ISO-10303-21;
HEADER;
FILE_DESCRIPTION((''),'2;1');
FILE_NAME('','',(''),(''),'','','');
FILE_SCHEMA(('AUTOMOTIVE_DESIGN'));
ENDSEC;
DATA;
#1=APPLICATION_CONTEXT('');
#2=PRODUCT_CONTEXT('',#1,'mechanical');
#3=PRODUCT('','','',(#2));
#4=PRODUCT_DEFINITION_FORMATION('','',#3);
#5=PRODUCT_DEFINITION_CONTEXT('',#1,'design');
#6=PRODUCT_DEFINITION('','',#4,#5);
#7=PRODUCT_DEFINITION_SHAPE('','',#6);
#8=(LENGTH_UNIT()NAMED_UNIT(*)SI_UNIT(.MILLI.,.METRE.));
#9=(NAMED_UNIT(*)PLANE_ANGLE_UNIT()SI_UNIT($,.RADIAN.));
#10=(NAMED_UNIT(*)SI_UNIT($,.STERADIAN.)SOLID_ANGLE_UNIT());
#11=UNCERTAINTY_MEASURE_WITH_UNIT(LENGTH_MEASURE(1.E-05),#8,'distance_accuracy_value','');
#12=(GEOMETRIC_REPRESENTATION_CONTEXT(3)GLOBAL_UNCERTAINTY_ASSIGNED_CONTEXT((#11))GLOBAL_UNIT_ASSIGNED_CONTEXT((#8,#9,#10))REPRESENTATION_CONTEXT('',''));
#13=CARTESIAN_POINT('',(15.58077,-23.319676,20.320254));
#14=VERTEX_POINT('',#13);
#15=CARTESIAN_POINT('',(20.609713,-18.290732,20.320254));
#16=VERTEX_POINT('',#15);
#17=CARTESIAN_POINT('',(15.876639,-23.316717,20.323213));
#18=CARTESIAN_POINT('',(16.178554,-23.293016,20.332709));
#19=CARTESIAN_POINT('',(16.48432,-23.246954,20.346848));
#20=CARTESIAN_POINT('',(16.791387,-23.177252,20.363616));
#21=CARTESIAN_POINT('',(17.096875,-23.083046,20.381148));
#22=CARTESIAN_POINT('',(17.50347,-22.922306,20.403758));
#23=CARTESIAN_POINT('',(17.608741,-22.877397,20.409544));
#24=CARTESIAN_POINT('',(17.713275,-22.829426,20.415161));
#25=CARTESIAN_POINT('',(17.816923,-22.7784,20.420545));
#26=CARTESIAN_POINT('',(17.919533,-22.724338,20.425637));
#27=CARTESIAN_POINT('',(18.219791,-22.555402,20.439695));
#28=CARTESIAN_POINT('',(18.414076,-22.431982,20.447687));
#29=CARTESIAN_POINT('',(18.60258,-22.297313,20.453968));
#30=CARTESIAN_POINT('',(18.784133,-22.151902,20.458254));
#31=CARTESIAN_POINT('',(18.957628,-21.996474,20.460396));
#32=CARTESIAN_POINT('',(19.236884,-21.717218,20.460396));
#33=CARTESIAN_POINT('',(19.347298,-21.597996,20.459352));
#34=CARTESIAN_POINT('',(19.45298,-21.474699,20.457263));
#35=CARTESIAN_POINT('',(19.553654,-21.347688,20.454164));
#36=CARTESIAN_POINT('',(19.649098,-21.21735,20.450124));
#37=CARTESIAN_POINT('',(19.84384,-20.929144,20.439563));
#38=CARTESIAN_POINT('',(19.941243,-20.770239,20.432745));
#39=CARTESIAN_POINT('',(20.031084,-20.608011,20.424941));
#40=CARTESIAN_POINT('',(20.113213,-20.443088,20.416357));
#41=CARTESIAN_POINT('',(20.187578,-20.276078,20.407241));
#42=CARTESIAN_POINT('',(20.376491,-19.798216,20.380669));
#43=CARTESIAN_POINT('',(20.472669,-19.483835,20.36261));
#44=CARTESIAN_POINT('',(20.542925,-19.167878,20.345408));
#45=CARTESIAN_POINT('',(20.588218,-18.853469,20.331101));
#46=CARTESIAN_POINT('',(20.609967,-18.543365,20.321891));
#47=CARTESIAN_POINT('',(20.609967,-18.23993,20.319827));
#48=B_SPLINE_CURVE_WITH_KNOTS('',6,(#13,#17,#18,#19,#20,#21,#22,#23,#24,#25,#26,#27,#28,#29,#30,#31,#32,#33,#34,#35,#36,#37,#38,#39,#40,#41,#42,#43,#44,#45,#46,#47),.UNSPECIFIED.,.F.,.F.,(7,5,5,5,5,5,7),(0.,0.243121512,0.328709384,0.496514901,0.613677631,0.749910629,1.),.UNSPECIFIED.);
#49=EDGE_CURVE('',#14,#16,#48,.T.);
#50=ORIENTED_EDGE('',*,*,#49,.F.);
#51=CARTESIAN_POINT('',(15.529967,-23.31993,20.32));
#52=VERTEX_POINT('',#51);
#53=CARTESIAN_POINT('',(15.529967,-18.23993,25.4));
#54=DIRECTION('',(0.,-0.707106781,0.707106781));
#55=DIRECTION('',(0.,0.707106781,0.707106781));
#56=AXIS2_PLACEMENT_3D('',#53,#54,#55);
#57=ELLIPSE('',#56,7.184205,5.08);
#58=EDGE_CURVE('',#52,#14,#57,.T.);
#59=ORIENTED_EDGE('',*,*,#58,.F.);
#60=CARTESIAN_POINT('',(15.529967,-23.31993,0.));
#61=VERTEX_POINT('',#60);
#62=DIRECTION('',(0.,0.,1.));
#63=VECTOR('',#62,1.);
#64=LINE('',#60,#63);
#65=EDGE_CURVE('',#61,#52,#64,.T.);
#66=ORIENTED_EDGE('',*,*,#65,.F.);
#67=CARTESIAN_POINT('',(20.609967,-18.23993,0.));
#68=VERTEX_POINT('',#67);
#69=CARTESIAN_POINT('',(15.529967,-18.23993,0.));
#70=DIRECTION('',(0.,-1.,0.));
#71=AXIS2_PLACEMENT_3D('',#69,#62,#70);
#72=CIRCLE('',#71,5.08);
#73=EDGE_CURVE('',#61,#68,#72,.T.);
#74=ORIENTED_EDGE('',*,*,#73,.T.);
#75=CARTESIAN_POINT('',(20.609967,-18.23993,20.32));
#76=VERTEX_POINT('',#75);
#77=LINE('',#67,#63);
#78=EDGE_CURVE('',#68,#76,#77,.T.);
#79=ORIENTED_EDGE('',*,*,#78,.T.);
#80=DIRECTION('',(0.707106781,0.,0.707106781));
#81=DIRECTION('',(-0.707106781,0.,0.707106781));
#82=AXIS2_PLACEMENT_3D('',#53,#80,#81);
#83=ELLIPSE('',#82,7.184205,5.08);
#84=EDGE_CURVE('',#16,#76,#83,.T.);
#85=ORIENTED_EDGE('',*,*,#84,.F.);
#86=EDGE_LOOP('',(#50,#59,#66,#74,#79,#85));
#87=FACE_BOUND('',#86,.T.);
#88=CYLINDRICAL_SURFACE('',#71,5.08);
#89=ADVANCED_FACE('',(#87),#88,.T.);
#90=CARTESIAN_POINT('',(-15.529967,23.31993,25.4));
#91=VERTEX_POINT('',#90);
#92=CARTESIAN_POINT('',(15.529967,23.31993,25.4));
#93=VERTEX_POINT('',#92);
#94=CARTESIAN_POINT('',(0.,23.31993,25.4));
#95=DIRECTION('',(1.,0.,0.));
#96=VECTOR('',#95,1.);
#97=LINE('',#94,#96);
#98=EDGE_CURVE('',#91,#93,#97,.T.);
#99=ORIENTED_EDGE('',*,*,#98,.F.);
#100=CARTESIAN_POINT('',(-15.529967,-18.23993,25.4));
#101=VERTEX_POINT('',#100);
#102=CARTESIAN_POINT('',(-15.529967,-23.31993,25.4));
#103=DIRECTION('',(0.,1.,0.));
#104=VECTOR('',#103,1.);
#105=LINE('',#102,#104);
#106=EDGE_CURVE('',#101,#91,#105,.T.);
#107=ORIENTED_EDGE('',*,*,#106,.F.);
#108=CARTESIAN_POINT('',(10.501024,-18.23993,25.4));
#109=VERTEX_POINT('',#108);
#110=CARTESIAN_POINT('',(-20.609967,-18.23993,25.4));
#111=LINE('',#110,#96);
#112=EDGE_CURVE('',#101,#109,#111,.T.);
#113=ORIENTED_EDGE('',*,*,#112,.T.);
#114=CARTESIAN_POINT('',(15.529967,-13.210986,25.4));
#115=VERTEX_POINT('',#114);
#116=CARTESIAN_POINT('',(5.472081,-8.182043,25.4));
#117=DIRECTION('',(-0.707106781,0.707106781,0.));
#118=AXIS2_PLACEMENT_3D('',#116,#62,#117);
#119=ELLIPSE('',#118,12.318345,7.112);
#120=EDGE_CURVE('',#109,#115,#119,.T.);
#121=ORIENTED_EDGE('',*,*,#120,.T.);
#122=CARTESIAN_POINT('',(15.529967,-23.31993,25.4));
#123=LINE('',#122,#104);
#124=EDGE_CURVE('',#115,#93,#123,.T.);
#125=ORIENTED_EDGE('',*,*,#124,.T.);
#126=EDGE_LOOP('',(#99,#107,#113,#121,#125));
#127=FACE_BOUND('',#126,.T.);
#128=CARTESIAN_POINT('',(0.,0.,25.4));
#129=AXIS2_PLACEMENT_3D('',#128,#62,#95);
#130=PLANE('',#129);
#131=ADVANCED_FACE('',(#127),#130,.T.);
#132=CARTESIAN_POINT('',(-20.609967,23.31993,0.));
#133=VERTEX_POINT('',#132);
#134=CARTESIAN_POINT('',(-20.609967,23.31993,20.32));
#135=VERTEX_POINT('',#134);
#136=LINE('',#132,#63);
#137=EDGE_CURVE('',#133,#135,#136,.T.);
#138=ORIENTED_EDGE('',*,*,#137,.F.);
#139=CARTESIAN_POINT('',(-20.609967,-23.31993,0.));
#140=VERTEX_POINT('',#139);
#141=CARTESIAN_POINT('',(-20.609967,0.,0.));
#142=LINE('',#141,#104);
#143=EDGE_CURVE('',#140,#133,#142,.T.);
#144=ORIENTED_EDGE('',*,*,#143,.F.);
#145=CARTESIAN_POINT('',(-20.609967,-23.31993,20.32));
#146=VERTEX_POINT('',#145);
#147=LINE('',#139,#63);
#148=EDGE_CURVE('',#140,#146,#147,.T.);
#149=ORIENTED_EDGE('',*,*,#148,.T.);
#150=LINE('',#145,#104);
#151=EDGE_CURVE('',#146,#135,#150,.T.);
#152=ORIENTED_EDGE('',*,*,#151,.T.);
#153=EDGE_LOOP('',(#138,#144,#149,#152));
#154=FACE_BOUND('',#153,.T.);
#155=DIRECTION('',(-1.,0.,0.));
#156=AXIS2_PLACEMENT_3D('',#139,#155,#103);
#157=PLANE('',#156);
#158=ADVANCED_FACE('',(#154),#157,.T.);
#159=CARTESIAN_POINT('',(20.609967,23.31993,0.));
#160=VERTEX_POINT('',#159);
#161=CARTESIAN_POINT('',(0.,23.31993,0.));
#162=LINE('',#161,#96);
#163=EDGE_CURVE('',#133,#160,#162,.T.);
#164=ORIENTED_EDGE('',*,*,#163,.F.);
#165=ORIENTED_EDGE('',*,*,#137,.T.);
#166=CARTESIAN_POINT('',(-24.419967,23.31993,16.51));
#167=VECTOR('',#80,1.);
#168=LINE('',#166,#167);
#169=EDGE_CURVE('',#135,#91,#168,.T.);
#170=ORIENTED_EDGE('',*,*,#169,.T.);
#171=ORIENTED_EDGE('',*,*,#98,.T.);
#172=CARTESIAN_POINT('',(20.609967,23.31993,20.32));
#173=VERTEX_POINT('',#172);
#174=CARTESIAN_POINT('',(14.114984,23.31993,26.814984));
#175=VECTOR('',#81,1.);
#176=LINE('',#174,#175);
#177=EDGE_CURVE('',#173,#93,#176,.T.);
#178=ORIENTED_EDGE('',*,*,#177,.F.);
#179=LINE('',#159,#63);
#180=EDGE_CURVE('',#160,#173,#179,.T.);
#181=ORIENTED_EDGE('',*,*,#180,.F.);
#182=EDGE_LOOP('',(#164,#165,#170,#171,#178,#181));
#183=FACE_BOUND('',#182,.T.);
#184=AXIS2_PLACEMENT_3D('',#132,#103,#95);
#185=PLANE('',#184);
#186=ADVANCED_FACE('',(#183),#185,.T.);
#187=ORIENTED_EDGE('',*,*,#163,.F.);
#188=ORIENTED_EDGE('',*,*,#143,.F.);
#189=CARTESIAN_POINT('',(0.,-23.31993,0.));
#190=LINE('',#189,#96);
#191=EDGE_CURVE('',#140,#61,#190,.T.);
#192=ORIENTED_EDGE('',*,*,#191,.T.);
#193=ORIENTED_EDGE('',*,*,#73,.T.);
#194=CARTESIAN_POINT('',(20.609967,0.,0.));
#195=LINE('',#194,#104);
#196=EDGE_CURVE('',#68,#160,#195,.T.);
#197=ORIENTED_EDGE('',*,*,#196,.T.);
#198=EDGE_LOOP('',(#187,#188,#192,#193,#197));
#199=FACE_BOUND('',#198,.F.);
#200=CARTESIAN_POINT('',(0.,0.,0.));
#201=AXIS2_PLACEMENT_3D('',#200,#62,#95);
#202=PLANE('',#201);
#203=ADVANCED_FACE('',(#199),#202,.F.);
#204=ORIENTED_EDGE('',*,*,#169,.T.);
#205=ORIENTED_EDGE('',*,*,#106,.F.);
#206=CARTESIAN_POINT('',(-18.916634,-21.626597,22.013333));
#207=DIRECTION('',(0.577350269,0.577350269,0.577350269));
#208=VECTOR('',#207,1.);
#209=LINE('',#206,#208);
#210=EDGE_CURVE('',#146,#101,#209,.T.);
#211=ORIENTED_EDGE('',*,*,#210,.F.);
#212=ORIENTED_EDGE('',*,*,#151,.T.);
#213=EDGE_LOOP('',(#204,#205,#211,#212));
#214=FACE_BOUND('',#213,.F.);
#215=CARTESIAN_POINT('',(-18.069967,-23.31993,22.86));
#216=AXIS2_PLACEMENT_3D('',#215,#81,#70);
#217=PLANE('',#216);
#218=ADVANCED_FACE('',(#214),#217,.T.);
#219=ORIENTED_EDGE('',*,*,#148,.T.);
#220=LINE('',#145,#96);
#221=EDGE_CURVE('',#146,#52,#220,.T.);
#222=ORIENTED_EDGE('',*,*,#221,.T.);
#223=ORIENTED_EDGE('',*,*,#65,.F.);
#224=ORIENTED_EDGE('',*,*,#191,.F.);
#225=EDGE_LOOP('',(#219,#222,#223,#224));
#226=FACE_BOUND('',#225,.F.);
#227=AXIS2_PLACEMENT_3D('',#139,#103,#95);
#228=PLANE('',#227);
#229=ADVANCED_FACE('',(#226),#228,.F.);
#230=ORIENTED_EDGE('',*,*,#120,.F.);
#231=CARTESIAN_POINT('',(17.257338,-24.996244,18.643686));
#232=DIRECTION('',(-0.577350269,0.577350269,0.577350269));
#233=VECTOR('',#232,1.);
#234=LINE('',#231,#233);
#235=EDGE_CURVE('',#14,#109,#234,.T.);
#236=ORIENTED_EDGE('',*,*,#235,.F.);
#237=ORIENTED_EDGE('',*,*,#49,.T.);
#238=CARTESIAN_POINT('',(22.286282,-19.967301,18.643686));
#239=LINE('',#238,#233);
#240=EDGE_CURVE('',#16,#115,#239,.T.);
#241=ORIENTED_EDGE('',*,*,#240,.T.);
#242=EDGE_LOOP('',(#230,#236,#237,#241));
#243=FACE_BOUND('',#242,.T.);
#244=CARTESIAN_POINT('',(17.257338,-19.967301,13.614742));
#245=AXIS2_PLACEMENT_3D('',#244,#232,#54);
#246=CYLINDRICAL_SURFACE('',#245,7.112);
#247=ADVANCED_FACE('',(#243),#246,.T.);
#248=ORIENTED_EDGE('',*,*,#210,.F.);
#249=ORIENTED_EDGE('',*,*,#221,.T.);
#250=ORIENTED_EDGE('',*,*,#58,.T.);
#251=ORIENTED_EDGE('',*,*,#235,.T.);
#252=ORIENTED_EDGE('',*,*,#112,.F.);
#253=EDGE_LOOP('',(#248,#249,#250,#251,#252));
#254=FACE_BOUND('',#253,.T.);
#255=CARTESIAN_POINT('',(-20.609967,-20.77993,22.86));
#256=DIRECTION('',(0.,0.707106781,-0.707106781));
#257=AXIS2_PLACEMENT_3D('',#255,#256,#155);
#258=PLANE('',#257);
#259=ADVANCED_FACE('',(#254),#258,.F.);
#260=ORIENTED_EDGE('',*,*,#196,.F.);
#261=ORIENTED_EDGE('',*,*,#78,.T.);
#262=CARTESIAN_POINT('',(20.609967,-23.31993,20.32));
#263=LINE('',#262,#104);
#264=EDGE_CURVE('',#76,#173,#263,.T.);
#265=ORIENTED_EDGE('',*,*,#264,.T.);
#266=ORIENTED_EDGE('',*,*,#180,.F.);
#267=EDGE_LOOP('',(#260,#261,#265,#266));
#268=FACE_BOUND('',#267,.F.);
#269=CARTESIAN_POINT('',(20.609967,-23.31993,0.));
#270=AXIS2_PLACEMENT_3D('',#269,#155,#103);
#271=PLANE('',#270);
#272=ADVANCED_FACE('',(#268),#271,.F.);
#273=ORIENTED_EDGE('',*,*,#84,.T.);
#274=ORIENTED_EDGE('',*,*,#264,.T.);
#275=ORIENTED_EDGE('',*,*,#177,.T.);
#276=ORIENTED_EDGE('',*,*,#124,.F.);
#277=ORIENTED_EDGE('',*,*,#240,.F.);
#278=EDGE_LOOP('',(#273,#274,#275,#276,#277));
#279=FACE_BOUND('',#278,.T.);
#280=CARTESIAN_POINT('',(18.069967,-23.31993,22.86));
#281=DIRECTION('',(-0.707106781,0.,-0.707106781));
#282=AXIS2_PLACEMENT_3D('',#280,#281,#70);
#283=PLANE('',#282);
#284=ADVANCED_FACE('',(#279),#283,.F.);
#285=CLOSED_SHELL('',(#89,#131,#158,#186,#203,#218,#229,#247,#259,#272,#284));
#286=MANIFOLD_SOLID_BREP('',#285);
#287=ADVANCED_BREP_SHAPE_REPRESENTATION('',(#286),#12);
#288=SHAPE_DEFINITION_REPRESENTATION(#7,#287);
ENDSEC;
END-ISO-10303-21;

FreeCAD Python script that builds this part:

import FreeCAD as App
import Part
import Sketcher

V = App.Vector
Q = App.Units.Quantity


def edges_at(feature, points):
    """Names of the edges that pass closest to the given points."""
    edges = feature.Shape.Edges
    near = lambda p: min(range(len(edges)), key=lambda i: edges[i].distToShape(Part.Vertex(*p))[0])
    return sorted({f"Edge{near(p) + 1}" for p in points})


def add_polygon(sketch, points):
    """Adds a closed chain of lines whose ends are joined by coincident constraints."""
    first, n = sketch.GeometryCount, len(points)
    for a, b in zip(points, points[1:] + points[:1]):
        sketch.addGeometry(Part.LineSegment(App.Vector(*a, 0), App.Vector(*b, 0)), False)
    for i in range(n):
        sketch.addConstraint(Sketcher.Constraint("Coincident", first + i, 2, first + (i + 1) % n, 1))

doc = App.newDocument("Part")
body = doc.addObject("PartDesign::Body", "Body")

sketch1 = body.newObject("Sketcher::SketchObject", "Sketch")
sketch1.AttachmentSupport = (doc.getObject("XY_Plane"), [""])
sketch1.MapMode = "FlatFace"
add_polygon(sketch1, [(-20.609967, 23.31993), (-20.609967, -23.31993), (20.609967, -23.31993), (20.609967, 23.31993)])
sketch1.addConstraint(Sketcher.Constraint("Vertical", 0))
sketch1.addConstraint(Sketcher.Constraint("Horizontal", 1))
sketch1.addConstraint(Sketcher.Constraint("Vertical", 2))
sketch1.addConstraint(Sketcher.Constraint("Horizontal", 3))
sketch1.addConstraint(Sketcher.Constraint("Symmetric", 0, 2, 2, 2, -1, 1))
sketch1.addConstraint(Sketcher.Constraint("DistanceY", 0, 2, 0, 1, Q("46.63986 mm")))
sketch1.addConstraint(Sketcher.Constraint("DistanceX", 1, 1, 1, 2, Q("41.219935 mm")))
pad1 = body.newObject("PartDesign::Pad", "Pad")
pad1.Profile = sketch1
pad1.Length = Q("1 in")
doc.recompute()

chamfer = body.newObject("PartDesign::Chamfer", "Chamfer")
chamfer.Base = (pad1, edges_at(pad1, [(20.61, 0, 25.4), (-20.61, 0, 25.4), (0, -23.32, 25.4)]))
chamfer.Size = Q("0.2 in")
doc.recompute()

fillet = body.newObject("PartDesign::Fillet", "Fillet")
fillet.Base = (chamfer, edges_at(chamfer, [(18.07, -20.78, 22.86)]))
fillet.Radius = Q("0.28 in")
doc.recompute()

fillet2 = body.newObject("PartDesign::Fillet", "Fillet001")
fillet2.Base = (fillet, edges_at(fillet, [(20.61, -23.32, 9.486)]))
fillet2.Radius = Q("0.2 in")

doc.recompute()
